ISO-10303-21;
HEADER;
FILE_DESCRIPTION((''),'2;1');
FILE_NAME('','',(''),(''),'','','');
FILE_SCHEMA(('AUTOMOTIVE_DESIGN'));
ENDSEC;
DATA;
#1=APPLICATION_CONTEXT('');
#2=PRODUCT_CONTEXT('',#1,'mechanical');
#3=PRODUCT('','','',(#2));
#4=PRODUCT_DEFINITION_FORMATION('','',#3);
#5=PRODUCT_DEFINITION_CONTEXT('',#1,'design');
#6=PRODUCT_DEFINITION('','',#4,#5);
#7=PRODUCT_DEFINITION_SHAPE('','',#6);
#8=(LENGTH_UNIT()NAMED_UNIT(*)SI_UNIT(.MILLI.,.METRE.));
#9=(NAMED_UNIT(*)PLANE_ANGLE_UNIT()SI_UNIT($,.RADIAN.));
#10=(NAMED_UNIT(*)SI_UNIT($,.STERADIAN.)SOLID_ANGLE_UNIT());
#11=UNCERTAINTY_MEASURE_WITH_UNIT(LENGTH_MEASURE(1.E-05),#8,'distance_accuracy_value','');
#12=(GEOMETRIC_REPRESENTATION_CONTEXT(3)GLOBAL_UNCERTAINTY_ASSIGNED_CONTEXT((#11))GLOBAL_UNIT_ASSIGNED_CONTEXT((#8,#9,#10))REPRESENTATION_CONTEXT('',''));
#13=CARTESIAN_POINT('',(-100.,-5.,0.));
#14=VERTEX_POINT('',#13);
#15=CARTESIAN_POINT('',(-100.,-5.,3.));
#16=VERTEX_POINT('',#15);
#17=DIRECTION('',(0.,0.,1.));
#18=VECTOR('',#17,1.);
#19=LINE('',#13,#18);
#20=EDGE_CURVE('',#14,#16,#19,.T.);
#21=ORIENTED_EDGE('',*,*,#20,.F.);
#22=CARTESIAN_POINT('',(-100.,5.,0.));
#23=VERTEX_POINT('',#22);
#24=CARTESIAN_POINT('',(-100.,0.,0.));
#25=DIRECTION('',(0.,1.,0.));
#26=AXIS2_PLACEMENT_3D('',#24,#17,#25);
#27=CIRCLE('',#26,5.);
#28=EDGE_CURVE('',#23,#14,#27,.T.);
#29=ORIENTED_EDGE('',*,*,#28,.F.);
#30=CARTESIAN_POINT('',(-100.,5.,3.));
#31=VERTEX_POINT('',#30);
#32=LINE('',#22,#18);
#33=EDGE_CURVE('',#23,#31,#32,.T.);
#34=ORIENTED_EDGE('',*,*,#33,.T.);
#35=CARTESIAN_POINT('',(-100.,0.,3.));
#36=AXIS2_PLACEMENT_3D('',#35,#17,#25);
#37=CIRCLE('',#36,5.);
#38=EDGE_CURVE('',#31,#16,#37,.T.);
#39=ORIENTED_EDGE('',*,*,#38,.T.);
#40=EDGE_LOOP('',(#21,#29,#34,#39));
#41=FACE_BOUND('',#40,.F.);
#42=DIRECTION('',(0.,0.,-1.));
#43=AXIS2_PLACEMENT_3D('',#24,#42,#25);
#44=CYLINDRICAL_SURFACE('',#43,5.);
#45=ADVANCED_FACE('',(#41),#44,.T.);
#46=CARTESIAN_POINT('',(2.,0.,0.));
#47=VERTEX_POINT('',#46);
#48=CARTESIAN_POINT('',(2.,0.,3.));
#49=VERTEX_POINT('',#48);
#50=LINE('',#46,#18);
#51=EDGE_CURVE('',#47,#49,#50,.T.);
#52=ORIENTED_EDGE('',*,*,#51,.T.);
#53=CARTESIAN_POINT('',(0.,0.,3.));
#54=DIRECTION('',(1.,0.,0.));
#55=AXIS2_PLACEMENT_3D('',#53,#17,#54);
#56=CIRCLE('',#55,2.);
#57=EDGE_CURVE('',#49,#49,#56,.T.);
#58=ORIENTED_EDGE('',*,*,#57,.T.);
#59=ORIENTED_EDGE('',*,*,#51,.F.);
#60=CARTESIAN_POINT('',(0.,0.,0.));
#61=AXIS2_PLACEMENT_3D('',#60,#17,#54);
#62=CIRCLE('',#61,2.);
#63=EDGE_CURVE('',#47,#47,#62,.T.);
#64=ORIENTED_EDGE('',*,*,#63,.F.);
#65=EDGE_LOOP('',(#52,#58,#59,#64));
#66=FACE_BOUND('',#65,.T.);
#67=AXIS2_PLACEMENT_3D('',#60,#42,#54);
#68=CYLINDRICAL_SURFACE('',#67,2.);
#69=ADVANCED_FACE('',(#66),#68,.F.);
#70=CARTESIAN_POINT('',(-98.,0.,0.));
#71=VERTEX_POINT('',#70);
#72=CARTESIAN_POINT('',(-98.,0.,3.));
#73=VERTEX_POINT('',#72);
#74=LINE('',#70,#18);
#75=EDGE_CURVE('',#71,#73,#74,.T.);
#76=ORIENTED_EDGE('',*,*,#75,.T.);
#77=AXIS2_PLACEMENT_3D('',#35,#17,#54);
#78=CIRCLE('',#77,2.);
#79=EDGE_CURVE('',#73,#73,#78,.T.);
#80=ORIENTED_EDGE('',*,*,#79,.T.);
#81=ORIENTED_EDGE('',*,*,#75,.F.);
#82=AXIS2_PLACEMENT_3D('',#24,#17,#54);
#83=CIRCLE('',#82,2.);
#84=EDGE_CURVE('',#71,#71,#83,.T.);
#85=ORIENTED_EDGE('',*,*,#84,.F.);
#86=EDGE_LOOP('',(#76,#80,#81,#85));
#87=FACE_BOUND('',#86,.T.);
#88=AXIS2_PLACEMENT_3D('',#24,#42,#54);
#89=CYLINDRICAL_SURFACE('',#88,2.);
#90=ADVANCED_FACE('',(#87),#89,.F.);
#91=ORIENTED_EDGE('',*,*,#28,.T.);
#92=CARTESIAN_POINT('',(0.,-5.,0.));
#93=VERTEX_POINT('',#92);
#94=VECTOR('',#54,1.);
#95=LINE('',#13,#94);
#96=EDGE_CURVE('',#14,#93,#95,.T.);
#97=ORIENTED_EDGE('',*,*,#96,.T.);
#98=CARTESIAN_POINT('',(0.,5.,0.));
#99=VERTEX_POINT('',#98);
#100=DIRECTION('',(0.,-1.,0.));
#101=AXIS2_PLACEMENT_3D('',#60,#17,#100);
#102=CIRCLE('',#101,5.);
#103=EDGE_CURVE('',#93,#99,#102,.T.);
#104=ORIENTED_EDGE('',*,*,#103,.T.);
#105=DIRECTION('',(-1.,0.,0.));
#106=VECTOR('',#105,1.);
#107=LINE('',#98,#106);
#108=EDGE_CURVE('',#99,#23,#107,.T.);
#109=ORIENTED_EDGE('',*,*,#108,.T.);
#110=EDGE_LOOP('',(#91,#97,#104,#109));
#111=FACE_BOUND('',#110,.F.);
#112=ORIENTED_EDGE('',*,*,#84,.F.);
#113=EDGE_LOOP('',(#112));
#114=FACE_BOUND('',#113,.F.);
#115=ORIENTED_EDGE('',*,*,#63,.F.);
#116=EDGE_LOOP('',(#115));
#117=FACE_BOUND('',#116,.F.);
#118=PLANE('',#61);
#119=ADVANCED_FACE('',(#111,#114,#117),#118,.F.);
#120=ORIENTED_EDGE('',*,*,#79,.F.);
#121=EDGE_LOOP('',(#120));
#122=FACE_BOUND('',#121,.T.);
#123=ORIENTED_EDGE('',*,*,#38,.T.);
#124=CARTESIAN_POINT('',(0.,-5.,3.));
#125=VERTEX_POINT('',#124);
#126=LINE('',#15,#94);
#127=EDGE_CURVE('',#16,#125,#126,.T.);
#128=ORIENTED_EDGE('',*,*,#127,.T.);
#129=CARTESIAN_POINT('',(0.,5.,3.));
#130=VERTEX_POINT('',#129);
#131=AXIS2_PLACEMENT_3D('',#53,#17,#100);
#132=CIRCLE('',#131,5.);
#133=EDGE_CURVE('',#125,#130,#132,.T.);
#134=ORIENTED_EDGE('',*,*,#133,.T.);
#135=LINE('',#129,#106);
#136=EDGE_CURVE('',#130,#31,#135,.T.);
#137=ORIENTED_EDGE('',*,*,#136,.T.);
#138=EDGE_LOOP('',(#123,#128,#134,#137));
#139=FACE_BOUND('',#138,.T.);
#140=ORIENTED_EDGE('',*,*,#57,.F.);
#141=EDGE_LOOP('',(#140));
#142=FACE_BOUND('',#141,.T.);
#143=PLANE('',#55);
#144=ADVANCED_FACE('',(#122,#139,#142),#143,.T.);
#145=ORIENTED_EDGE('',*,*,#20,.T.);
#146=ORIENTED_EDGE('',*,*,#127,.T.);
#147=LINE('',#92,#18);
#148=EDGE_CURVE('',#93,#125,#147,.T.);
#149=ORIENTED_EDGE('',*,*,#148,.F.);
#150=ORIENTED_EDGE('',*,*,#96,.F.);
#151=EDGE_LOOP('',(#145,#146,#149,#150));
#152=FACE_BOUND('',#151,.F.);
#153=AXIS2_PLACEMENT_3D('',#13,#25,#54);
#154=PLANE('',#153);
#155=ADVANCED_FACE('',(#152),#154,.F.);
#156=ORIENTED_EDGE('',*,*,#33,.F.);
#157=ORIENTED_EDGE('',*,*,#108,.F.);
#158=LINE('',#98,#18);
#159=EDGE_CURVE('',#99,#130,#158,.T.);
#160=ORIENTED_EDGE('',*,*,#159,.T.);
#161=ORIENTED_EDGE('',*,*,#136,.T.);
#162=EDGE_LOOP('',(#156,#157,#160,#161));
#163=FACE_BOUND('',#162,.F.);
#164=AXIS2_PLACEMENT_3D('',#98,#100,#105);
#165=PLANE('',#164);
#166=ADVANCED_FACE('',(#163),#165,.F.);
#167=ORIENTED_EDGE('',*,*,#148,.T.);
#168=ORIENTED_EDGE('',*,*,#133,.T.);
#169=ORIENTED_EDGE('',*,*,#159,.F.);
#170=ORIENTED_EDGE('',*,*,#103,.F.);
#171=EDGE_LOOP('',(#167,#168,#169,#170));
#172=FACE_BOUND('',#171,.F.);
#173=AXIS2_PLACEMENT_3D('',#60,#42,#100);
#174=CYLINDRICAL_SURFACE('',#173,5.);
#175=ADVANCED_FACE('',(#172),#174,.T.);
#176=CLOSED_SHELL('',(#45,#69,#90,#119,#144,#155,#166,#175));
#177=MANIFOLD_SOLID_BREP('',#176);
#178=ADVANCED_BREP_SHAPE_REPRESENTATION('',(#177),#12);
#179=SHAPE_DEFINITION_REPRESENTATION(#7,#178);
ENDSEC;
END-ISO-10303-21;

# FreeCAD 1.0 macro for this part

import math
import FreeCAD as App
import Part
import Sketcher
from FreeCAD import Vector

doc = App.newDocument("Part")
body = doc.addObject("PartDesign::Body", "Body")

# Sketch on XY plane
sketch1 = body.newObject("Sketcher::SketchObject", "Sketch")
sketch1.AttachmentSupport = (doc.getObject("XY_Plane"), [""])
sketch1.MapMode = "FlatFace"
sketch1.addGeometry(Part.ArcOfCircle(Part.Circle(Vector(0, 0, 0), Vector(0, 0, 1), 5), math.radians(-90), math.radians(90)), False)
sketch1.addGeometry(Part.LineSegment(Vector(0, 5, 0), Vector(-100, 5, 0)), False)
sketch1.addGeometry(Part.ArcOfCircle(Part.Circle(Vector(-100, 0, 0), Vector(0, 0, 1), 5), math.radians(90), math.radians(270)), False)
sketch1.addGeometry(Part.LineSegment(Vector(-100, -5, 0), Vector(0, -5, 0)), False)
sketch1.addGeometry(Part.Circle(Vector(-100, 0, 0), Vector(0, 0, 1), 2), False)
sketch1.addGeometry(Part.Circle(Vector(0, 0, 0), Vector(0, 0, 1), 2), False)
sketch1.addConstraint(Sketcher.Constraint("Tangent", 0, 2, 1, 1))
sketch1.addConstraint(Sketcher.Constraint("Tangent", 1, 2, 2, 1))
sketch1.addConstraint(Sketcher.Constraint("Tangent", 2, 2, 3, 1))
sketch1.addConstraint(Sketcher.Constraint("Tangent", 3, 2, 0, 1))
sketch1.addConstraint(Sketcher.Constraint("Horizontal", 1))
sketch1.addConstraint(Sketcher.Constraint("Horizontal", 3))
sketch1.addConstraint(Sketcher.Constraint("Coincident", 0, 3, -1, 1))
sketch1.addConstraint(Sketcher.Constraint("Coincident", 5, 3, -1, 1))
sketch1.addConstraint(Sketcher.Constraint("Coincident", 4, 3, 2, 3))
sketch1.addConstraint(Sketcher.Constraint("Equal", 4, 5))
sketch1.addConstraint(Sketcher.Constraint("Diameter", 4, 4.0))
sketch1.addConstraint(Sketcher.Constraint("Radius", 0, 5.0))
sketch1.addConstraint(Sketcher.Constraint("DistanceX", 1, 2, 1, 1, 100.0))
pad1 = body.newObject("PartDesign::Pad", "Pad")
pad1.Profile = sketch1
pad1.Length = 3

doc.recompute()
